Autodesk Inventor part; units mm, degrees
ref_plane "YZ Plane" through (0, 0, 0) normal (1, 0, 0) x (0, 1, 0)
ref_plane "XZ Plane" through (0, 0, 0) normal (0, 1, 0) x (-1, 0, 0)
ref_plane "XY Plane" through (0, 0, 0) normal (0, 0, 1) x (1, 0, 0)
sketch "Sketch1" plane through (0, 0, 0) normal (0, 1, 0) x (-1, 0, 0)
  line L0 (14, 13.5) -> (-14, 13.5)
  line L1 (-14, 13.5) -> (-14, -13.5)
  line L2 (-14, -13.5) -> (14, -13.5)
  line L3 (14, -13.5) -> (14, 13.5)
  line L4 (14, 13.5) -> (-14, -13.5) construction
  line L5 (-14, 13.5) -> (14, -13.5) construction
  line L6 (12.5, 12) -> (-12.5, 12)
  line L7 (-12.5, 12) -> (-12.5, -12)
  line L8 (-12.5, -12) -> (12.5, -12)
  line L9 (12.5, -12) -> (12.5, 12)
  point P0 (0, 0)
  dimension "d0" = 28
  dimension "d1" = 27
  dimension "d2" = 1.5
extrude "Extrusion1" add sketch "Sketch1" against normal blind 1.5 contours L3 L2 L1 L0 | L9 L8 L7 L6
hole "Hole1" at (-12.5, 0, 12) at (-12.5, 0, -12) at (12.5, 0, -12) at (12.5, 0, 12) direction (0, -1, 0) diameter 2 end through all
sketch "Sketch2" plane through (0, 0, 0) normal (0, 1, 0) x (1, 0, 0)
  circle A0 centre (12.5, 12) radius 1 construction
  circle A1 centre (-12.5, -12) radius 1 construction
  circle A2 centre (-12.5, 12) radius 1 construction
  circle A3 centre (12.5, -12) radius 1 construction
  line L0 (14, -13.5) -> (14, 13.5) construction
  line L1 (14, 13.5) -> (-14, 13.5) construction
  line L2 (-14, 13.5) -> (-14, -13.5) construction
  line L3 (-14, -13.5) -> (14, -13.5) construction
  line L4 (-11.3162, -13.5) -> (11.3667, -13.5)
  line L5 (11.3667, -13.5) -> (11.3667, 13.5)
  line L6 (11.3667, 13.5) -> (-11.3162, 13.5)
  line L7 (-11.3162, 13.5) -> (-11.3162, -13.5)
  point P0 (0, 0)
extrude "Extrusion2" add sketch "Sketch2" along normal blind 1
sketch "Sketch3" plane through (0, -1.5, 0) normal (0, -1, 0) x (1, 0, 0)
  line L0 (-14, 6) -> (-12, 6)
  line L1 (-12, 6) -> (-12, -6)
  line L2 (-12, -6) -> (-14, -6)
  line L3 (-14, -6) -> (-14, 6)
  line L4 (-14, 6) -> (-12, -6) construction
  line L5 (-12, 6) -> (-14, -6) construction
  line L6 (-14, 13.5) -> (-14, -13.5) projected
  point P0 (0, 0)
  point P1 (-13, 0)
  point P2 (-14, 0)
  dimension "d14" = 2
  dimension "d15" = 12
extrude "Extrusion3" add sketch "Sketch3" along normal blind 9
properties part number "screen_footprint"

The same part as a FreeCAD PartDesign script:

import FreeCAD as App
import Part
import Sketcher
from FreeCAD import Vector
Q = App.Units.Quantity


def add_polygon(sketch, points):
    """Adds a closed chain of lines whose ends are joined by coincident constraints."""
    first, n = sketch.GeometryCount, len(points)
    for a, b in zip(points, points[1:] + points[:1]):
        sketch.addGeometry(Part.LineSegment(App.Vector(*a, 0), App.Vector(*b, 0)), False)
    for i in range(n):
        sketch.addConstraint(Sketcher.Constraint("Coincident", first + i, 2, first + (i + 1) % n, 1))

doc = App.newDocument("Part")
body = doc.addObject("PartDesign::Body", "Body")

sketch1 = body.newObject("Sketcher::SketchObject", "Sketch")
sketch1.AttachmentSupport = (doc.getObject("XZ_Plane"), [""])
sketch1.MapMode = "FlatFace"
add_polygon(sketch1, [(-14, -14), (-14, 14), (14, 14), (14, -14)])
sketch1.addConstraint(Sketcher.Constraint("Vertical", 0))
sketch1.addConstraint(Sketcher.Constraint("Horizontal", 1))
sketch1.addConstraint(Sketcher.Constraint("Vertical", 2))
sketch1.addConstraint(Sketcher.Constraint("Horizontal", 3))
sketch1.addConstraint(Sketcher.Constraint("Symmetric", 0, 2, 2, 2, -1, 1))
sketch1.addConstraint(Sketcher.Constraint("DistanceX", 1, 1, 1, 2, Q("28 mm")))
sketch1.addConstraint(Sketcher.Constraint("DistanceY", 0, 1, 0, 2, Q("27 mm")))
pad1 = body.newObject("PartDesign::Pad", "Pad")
pad1.Profile = sketch1
pad1.Length = 1.5

sketch2 = body.newObject("Sketcher::SketchObject", "Sketch001")
sketch2.AttachmentSupport = (doc.getObject("XZ_Plane"), [""])
sketch2.MapMode = "FlatFace"
sketch2.addGeometry(Part.Circle(Vector(-12.5, 12, 0), Vector(0, 0, 1), 1), False)
sketch2.addGeometry(Part.Circle(Vector(-12.5, -12, 0), Vector(0, 0, 1), 1), False)
sketch2.addGeometry(Part.Circle(Vector(12.5, -12, 0), Vector(0, 0, 1), 1), False)
sketch2.addGeometry(Part.Circle(Vector(12.5, 12, 0), Vector(0, 0, 1), 1), False)
sketch2.addConstraint(Sketcher.Constraint("Equal", 0, 1))
sketch2.addConstraint(Sketcher.Constraint("Equal", 1, 2))
sketch2.addConstraint(Sketcher.Constraint("Equal", 2, 3))
sketch2.addConstraint(Sketcher.Constraint("Symmetric", 0, 3, 2, 3, -1, 1))
sketch2.addConstraint(Sketcher.Constraint("Symmetric", 1, 3, 3, 3, -1, 1))
sketch2.addConstraint(Sketcher.Constraint("Symmetric", 1, 3, 2, 3, -2))
sketch2.addConstraint(Sketcher.Constraint("Diameter", 0, Q("2 mm")))
sketch2.addConstraint(Sketcher.Constraint("DistanceY", -1, 1, 0, 3, Q("12 mm")))
sketch2.addConstraint(Sketcher.Constraint("DistanceX", 1, 3, 2, 3, Q("25 mm")))
doc.recompute()
hole = body.newObject("PartDesign::Hole", "Hole")
hole.Profile = sketch2
hole.ThreadType = "None"
hole.Diameter = 2
hole.DepthType = "ThroughAll"
hole.Reversed = True

sketch3 = body.newObject("Sketcher::SketchObject", "Sketch002")
sketch3.AttachmentSupport = (doc.getObject("XZ_Plane"), [""])
sketch3.MapMode = "FlatFace"
add_polygon(sketch3, [(-11, -14), (-11, 14), (11, 14), (11, -14)])
sketch3.addConstraint(Sketcher.Constraint("Vertical", 0))
sketch3.addConstraint(Sketcher.Constraint("Horizontal", 1))
sketch3.addConstraint(Sketcher.Constraint("Vertical", 2))
sketch3.addConstraint(Sketcher.Constraint("Horizontal", 3))
sketch3.addConstraint(Sketcher.Constraint("DistanceY", 0, 1, 0, 2, Q("27 mm")))
sketch3.addConstraint(Sketcher.Constraint("DistanceY", -1, 1, 0, 2, Q("13.5 mm")))
sketch3.addConstraint(Sketcher.Constraint("DistanceX", 1, 1, 1, 2, Q("22.683 mm")))
sketch3.addConstraint(Sketcher.Constraint("DistanceX", 0, 2, -1, 1, Q("11.3162 mm")))
pad2 = body.newObject("PartDesign::Pad", "Pad001")
pad2.Profile = sketch3
pad2.Length = 1
pad2.Reversed = True

sketch4 = body.newObject("Sketcher::SketchObject", "Sketch003")
sketch4.AttachmentSupport = (doc.getObject("XZ_Plane"), [""])
sketch4.MapMode = "FlatFace"
sketch4.AttachmentOffset = App.Placement(Vector(0, 0, 1.5), App.Rotation())
add_polygon(sketch4, [(-12, 6), (-14, 6), (-14, -6), (-12, -6)])
sketch4.addConstraint(Sketcher.Constraint("Horizontal", 0))
sketch4.addConstraint(Sketcher.Constraint("Vertical", 1))
sketch4.addConstraint(Sketcher.Constraint("Horizontal", 2))
sketch4.addConstraint(Sketcher.Constraint("Vertical", 3))
sketch4.addConstraint(Sketcher.Constraint("DistanceX", 0, 2, 0, 1, Q("2 mm")))
sketch4.addConstraint(Sketcher.Constraint("DistanceY", 1, 2, 1, 1, Q("12 mm")))
sketch4.addConstraint(Sketcher.Constraint("DistanceX", 2, 2, -1, 1, Q("12 mm")))
sketch4.addConstraint(Sketcher.Constraint("DistanceY", -1, 1, 0, 2, Q("6 mm")))
pad3 = body.newObject("PartDesign::Pad", "Pad002")
pad3.Profile = sketch4
pad3.Length = 9

doc.recompute()
